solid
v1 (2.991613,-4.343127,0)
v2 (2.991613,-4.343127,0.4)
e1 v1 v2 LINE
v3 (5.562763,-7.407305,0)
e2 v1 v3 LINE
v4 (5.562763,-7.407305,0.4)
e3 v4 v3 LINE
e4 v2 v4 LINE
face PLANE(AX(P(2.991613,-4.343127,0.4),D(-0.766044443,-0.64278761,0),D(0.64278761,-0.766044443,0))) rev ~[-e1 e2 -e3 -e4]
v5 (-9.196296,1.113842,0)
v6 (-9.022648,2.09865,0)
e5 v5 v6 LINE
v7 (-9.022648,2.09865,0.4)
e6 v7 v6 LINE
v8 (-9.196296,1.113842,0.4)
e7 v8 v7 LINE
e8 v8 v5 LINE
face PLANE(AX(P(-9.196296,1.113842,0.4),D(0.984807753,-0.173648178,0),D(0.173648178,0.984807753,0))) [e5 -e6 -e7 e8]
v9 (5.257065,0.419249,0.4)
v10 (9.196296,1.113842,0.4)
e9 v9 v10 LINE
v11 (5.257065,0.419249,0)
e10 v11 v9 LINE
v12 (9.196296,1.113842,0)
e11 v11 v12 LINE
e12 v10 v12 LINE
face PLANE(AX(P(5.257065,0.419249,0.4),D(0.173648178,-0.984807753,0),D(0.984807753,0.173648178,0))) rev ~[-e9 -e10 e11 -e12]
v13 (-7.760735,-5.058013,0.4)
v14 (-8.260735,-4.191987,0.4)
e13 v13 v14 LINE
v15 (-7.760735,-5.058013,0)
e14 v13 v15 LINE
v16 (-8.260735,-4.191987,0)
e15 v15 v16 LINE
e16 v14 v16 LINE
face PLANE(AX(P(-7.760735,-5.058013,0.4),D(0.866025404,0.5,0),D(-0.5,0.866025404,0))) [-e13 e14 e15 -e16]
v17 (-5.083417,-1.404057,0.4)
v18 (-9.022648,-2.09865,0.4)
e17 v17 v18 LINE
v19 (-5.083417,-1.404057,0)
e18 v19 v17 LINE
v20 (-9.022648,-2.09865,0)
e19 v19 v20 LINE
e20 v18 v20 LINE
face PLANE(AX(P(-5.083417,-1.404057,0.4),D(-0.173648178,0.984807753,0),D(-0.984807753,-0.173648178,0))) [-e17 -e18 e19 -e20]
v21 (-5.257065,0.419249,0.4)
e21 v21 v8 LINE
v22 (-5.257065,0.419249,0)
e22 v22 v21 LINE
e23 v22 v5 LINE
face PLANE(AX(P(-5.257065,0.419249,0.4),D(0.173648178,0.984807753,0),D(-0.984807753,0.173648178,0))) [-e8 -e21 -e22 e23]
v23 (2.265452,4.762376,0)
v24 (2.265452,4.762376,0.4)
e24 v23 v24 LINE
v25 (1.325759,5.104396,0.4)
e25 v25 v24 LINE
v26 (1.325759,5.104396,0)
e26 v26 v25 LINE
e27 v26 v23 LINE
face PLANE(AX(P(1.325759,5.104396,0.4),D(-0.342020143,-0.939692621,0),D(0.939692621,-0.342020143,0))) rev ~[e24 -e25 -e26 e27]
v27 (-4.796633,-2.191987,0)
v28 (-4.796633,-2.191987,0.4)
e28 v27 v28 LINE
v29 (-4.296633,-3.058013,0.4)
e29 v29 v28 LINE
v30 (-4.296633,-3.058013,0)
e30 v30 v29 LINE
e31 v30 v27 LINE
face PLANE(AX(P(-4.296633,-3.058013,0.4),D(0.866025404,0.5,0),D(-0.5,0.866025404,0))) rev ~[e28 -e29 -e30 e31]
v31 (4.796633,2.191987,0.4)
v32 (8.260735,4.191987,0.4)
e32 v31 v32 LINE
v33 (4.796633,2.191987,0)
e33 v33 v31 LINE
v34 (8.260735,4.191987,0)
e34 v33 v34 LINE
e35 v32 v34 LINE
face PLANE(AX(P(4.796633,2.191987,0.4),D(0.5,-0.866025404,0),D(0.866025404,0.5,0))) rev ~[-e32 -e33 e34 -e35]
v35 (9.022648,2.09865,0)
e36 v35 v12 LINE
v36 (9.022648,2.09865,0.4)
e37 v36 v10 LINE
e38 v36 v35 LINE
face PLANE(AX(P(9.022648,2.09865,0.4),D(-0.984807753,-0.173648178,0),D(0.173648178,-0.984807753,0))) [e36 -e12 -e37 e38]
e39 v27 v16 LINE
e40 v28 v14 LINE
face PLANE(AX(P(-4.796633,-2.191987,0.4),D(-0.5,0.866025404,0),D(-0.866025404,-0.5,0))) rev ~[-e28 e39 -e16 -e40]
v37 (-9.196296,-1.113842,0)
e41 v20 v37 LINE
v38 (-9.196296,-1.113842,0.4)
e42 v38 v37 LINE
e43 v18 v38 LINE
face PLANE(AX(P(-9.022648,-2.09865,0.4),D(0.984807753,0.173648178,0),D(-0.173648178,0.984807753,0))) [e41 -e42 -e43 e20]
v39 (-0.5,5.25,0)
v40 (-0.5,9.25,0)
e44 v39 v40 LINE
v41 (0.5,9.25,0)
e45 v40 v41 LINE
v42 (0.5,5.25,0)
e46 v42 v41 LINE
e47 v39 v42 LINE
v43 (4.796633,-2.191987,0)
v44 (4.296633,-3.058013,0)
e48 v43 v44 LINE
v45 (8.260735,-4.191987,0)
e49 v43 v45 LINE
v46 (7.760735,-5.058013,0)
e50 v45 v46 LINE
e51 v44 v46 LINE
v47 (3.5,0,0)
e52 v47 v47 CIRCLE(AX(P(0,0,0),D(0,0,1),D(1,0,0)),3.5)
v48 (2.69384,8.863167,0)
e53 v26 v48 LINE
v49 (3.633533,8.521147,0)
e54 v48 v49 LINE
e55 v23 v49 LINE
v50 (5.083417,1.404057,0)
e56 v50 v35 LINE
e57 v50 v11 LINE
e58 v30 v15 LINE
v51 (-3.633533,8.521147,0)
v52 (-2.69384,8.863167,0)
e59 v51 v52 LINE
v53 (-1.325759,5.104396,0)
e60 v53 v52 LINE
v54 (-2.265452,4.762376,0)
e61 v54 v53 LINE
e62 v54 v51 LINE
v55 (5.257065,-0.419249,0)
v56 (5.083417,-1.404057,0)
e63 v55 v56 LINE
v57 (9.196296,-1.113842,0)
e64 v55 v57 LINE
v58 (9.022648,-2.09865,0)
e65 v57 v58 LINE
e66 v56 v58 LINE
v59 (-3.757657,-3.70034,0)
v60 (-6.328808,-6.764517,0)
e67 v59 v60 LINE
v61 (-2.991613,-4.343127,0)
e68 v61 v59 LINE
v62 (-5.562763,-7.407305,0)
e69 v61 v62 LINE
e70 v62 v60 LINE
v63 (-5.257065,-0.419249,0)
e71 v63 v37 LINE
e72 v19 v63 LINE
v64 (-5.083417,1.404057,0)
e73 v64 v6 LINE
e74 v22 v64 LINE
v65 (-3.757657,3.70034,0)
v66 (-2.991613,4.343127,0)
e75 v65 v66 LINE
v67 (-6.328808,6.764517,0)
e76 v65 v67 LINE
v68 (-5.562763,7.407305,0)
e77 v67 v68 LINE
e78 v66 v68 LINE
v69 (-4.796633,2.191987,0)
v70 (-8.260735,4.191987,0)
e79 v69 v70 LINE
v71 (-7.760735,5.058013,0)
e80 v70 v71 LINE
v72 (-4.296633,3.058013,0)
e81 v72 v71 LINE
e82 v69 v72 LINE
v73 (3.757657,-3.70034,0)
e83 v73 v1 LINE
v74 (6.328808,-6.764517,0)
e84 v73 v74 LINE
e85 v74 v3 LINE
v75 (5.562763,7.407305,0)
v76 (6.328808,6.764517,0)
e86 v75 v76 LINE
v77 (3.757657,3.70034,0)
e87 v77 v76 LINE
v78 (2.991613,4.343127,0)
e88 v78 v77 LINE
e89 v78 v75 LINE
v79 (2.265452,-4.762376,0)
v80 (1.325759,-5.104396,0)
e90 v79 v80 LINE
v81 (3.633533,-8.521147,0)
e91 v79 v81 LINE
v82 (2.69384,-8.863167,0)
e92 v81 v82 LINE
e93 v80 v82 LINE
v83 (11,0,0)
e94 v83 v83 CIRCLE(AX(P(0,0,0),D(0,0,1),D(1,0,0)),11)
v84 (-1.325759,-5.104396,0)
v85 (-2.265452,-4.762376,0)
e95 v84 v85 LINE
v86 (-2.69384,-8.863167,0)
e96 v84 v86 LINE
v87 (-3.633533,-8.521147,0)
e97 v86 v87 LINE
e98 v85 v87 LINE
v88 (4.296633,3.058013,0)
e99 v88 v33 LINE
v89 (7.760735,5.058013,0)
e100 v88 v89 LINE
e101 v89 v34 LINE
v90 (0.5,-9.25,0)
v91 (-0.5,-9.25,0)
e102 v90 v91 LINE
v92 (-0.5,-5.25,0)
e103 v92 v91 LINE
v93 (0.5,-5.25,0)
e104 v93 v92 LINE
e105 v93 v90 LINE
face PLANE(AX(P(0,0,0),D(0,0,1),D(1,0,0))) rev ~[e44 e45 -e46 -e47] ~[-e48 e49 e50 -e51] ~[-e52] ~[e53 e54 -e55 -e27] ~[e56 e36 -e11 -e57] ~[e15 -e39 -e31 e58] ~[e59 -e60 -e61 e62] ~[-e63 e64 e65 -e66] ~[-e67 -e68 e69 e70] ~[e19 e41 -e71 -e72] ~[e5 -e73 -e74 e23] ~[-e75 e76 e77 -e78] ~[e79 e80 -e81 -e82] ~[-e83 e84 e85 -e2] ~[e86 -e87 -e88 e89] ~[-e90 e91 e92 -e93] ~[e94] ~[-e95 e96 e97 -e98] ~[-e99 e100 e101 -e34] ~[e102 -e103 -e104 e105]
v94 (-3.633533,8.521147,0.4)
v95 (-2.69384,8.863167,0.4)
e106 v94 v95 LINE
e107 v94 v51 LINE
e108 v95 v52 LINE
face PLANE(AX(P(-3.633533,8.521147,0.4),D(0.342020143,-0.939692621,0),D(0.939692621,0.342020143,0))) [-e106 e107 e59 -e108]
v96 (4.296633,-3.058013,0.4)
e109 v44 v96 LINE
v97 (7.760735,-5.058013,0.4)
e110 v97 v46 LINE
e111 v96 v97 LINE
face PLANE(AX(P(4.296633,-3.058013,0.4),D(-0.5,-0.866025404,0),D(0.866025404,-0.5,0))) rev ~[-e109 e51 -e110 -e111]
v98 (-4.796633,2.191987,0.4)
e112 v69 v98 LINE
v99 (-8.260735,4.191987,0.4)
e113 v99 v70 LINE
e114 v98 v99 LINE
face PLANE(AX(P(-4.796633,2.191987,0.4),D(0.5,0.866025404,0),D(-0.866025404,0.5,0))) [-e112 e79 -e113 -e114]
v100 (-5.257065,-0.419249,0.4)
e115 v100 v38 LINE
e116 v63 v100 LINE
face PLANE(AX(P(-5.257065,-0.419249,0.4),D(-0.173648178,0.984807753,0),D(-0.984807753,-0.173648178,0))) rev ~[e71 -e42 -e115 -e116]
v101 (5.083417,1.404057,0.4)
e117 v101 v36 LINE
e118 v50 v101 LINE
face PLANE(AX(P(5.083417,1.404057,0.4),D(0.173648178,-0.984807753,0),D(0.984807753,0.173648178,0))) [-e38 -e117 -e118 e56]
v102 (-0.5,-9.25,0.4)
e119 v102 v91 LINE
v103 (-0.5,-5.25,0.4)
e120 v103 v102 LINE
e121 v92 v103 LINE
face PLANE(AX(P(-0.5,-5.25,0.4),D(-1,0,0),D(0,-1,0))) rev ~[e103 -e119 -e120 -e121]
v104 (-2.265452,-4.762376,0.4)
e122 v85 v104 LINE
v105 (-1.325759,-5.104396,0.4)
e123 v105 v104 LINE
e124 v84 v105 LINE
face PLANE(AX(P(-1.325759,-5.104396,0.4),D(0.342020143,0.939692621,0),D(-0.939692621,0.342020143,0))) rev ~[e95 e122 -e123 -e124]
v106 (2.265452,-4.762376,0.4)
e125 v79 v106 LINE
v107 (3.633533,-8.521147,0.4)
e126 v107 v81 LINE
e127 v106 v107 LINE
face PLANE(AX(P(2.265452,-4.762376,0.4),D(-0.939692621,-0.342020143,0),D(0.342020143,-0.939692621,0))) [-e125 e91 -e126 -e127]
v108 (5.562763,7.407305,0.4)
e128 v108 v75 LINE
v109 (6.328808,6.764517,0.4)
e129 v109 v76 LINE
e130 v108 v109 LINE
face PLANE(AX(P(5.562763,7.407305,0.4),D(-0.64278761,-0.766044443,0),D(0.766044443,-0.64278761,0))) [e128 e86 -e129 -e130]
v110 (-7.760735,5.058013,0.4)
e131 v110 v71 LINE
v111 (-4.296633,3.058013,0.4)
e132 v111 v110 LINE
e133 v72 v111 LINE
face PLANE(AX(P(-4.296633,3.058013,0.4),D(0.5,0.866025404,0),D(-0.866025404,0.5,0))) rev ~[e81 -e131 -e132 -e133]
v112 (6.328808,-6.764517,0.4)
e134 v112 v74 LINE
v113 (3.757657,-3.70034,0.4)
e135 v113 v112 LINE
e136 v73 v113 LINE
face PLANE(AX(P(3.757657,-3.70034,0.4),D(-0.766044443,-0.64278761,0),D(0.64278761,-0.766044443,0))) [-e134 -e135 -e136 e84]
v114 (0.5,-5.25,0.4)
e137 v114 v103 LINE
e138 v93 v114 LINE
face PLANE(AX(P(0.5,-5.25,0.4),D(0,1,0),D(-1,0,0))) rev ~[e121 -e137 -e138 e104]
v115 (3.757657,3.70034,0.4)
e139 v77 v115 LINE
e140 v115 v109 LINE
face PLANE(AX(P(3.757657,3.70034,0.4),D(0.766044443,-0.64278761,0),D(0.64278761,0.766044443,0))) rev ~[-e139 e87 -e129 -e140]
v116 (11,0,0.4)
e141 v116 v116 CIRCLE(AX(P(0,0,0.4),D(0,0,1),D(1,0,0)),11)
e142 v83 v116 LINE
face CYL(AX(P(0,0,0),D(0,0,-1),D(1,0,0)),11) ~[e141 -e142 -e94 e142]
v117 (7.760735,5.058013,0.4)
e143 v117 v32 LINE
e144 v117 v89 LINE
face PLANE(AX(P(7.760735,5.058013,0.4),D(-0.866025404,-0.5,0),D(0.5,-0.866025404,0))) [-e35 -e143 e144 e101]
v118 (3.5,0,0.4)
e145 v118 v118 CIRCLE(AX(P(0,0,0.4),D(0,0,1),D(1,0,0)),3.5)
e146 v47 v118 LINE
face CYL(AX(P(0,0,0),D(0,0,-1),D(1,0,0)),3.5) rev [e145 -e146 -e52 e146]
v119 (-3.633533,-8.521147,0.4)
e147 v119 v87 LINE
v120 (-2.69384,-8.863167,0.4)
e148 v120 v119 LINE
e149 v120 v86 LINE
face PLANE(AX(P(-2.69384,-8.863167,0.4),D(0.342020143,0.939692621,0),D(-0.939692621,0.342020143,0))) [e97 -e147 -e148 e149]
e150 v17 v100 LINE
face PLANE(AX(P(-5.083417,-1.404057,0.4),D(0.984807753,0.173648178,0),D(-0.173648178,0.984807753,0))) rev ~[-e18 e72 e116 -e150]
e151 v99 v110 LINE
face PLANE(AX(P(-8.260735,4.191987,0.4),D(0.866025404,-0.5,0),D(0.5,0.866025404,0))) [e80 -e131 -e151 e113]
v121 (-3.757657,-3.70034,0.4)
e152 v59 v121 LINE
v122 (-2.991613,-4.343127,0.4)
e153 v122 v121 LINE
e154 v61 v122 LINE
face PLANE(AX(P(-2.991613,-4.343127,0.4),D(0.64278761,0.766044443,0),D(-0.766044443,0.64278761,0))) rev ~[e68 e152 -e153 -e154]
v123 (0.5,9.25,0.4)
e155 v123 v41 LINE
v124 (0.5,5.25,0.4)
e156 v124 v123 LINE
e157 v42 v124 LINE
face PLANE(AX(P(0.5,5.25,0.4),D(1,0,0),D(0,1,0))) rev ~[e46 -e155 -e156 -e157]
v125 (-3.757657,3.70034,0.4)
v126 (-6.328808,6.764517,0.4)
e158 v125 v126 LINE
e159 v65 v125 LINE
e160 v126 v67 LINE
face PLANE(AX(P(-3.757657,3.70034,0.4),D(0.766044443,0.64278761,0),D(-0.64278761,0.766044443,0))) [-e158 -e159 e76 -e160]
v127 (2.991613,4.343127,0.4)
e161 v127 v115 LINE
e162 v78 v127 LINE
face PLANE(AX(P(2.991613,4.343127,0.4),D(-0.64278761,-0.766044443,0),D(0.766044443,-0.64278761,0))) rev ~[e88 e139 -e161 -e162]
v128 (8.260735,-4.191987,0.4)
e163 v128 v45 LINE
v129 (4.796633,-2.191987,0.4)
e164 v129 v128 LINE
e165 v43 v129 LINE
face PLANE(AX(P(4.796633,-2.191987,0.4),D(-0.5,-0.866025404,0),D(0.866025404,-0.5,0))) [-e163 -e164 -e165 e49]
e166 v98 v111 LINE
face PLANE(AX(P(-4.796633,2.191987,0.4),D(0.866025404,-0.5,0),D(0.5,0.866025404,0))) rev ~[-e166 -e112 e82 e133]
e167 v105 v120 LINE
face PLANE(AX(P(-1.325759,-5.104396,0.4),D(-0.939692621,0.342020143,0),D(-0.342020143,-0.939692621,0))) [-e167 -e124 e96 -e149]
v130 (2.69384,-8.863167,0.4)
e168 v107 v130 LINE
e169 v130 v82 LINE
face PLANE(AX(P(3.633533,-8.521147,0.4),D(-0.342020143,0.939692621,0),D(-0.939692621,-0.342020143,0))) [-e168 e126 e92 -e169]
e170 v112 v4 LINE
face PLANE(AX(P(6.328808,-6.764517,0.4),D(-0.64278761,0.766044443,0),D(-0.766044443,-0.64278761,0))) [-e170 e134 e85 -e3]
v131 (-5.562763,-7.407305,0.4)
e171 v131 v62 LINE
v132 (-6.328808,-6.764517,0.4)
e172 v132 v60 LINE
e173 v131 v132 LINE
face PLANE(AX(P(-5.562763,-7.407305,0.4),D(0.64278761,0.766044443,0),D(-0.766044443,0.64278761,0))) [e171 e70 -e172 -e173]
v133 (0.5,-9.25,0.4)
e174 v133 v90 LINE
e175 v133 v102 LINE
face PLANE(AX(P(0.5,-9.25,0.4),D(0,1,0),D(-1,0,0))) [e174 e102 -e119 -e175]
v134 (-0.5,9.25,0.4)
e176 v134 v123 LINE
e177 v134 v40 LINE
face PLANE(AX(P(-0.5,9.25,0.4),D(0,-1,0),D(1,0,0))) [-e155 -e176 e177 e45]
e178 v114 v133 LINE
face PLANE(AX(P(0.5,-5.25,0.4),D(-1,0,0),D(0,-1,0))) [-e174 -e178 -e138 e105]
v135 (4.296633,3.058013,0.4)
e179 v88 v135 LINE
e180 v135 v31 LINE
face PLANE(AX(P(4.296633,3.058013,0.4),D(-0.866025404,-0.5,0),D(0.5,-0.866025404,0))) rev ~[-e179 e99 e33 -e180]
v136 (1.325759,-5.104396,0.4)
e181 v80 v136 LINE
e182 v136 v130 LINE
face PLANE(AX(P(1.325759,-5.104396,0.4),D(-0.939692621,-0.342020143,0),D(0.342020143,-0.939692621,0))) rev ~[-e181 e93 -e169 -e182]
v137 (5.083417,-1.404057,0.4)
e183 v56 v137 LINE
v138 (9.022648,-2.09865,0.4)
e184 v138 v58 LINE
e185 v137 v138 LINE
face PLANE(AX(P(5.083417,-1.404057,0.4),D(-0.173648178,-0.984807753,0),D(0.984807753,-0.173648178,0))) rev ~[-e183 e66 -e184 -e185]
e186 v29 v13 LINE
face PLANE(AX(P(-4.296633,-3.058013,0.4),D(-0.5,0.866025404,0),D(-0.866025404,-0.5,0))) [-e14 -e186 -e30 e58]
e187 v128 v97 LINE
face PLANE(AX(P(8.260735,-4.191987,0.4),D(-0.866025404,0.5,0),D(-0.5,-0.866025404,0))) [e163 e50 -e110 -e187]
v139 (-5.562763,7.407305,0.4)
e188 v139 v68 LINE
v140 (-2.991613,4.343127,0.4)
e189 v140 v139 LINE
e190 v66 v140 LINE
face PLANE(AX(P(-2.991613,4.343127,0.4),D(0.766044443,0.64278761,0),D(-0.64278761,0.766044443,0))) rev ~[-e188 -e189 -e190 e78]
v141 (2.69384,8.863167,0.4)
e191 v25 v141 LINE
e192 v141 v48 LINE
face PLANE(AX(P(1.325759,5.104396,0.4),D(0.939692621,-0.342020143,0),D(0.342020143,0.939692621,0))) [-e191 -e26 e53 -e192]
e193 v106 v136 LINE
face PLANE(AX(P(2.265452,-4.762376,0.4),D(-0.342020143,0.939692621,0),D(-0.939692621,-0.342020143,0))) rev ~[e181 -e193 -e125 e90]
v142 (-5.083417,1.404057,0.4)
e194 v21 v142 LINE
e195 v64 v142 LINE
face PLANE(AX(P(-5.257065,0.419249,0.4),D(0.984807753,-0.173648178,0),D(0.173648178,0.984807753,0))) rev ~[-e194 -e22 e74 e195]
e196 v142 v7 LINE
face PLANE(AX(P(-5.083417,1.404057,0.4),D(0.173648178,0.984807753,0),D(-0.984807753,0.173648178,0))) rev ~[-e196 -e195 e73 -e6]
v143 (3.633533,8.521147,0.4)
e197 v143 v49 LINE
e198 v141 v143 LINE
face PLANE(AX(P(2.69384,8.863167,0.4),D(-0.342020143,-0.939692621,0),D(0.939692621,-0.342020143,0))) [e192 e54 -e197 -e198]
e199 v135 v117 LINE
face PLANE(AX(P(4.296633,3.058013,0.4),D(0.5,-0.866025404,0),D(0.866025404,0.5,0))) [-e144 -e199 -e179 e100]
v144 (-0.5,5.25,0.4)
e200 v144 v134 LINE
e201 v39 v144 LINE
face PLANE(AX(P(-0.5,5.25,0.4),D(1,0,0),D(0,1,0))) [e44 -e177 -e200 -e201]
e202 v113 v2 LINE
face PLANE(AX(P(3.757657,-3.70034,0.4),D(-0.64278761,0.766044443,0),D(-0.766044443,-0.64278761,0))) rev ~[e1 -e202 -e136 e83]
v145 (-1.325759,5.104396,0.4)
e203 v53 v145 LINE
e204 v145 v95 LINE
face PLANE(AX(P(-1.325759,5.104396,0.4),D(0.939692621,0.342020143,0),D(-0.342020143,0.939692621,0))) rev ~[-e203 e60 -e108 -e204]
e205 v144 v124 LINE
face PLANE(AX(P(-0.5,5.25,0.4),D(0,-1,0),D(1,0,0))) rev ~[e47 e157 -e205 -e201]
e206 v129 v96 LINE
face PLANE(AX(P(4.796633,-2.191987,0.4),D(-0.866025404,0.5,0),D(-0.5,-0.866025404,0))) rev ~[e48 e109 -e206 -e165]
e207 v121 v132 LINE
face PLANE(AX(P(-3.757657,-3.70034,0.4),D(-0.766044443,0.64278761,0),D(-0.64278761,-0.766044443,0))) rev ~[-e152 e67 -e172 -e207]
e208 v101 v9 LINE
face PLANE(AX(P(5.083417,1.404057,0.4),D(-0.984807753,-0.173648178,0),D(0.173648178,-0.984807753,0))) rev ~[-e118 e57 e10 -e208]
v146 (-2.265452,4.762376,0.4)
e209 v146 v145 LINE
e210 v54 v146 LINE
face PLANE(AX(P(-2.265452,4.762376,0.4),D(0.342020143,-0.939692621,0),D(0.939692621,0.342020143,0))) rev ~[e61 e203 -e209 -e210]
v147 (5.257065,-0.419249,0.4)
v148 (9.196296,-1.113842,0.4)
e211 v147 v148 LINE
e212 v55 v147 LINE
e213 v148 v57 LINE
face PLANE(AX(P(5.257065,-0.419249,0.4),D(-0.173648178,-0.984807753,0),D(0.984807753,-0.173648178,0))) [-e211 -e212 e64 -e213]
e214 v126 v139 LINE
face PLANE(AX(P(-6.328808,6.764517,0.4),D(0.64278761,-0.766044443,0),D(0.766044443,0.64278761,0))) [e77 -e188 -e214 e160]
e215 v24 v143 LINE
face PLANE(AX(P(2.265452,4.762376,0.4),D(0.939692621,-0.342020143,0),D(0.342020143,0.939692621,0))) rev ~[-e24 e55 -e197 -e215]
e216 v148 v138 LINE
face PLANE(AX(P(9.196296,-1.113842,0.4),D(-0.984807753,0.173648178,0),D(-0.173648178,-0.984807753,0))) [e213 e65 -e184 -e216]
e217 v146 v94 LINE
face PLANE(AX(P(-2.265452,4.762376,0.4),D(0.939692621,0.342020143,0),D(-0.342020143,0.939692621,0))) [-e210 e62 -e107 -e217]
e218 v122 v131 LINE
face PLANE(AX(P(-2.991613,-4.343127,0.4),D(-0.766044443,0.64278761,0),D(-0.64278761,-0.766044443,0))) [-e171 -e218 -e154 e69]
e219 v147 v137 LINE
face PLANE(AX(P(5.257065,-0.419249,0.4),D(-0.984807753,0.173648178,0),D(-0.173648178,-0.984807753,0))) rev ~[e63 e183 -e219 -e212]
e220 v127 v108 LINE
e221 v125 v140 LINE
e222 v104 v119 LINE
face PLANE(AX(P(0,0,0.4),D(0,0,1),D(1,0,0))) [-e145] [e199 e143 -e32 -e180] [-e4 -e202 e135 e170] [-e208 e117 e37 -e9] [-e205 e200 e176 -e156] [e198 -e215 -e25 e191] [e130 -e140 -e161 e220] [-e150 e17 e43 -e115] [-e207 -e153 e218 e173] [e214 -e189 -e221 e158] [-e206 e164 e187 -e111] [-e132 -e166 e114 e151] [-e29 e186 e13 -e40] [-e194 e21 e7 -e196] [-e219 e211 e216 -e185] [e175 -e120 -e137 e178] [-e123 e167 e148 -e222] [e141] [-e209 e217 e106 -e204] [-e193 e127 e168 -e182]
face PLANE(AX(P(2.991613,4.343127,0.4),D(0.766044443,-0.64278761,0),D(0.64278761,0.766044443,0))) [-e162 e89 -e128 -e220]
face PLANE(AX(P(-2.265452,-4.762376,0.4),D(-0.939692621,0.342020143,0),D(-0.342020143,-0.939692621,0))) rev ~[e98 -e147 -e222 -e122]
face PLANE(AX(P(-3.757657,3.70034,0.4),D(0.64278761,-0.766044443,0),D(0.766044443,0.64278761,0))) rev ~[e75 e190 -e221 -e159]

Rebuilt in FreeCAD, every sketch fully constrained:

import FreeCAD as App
import Part
import Sketcher


def add_polygon(sketch, points):
    """Adds a closed chain of lines whose ends are joined by coincident constraints."""
    first, n = sketch.GeometryCount, len(points)
    for a, b in zip(points, points[1:] + points[:1]):
        sketch.addGeometry(Part.LineSegment(App.Vector(*a, 0), App.Vector(*b, 0)), False)
    for i in range(n):
        sketch.addConstraint(Sketcher.Constraint("Coincident", first + i, 2, first + (i + 1) % n, 1))

doc = App.newDocument("Part")
body = doc.addObject("PartDesign::Body", "Body")

sketch1 = body.newObject("Sketcher::SketchObject", "Sketch")
sketch1.AttachmentSupport = (doc.getObject("XY_Plane"), [""])
sketch1.MapMode = "FlatFace"
sketch1.addGeometry([
    Part.Circle(App.Vector(0, 0, 0), App.Vector(0, 0, 1), 11),
    Part.Circle(App.Vector(0, 0, 0), App.Vector(0, 0, 1), 3.5),
], False)
sketch1.addConstraint([
    Sketcher.Constraint("Coincident", 0, 3, -1, 1),
    Sketcher.Constraint("Coincident", 1, 3, -1, 1),
    Sketcher.Constraint("Diameter", 0, 22.0),
    Sketcher.Constraint("Diameter", 1, 7.0),
])
pad1 = body.newObject("PartDesign::Pad", "Pad")
pad1.Profile = sketch1
pad1.Length = 0.4

sketch2 = body.newObject("Sketcher::SketchObject", "Sketch001")
sketch2.AttachmentSupport = (doc.getObject("XY_Plane"), [""])
sketch2.MapMode = "FlatFace"
sketch2.AttachmentOffset = App.Placement(App.Vector(0, 0, 0.4), App.Rotation())
add_polygon(sketch2, [(-0.5, 9.2), (-0.5, 5.2), (0.5, 5.2), (0.5, 9.2)])
sketch2.addConstraint([
    Sketcher.Constraint("Vertical", 0),
    Sketcher.Constraint("Horizontal", 1),
    Sketcher.Constraint("Vertical", 2),
    Sketcher.Constraint("Horizontal", 3),
    Sketcher.Constraint("DistanceX", 1, 1, 1, 2, 1.0),
    Sketcher.Constraint("DistanceY", 0, 2, 0, 1, 4.0),
    Sketcher.Constraint("DistanceX", 0, 2, -1, 1, 0.5),
    Sketcher.Constraint("DistanceY", -1, 1, 0, 2, 5.25),
])
pocket1 = body.newObject("PartDesign::Pocket", "Pocket")
pocket1.Profile = sketch2
pocket1.Length = 33.122982
pocket1.Midplane = True
doc.recompute()

polarpattern = body.newObject("PartDesign::PolarPattern", "PolarPattern")
polarpattern.Originals = [pocket1]
polarpattern.Axis = (doc.getObject("Z_Axis"), [""])
polarpattern.Angle = 360
polarpattern.Occurrences = 18
body.Tip = polarpattern

doc.recompute()
